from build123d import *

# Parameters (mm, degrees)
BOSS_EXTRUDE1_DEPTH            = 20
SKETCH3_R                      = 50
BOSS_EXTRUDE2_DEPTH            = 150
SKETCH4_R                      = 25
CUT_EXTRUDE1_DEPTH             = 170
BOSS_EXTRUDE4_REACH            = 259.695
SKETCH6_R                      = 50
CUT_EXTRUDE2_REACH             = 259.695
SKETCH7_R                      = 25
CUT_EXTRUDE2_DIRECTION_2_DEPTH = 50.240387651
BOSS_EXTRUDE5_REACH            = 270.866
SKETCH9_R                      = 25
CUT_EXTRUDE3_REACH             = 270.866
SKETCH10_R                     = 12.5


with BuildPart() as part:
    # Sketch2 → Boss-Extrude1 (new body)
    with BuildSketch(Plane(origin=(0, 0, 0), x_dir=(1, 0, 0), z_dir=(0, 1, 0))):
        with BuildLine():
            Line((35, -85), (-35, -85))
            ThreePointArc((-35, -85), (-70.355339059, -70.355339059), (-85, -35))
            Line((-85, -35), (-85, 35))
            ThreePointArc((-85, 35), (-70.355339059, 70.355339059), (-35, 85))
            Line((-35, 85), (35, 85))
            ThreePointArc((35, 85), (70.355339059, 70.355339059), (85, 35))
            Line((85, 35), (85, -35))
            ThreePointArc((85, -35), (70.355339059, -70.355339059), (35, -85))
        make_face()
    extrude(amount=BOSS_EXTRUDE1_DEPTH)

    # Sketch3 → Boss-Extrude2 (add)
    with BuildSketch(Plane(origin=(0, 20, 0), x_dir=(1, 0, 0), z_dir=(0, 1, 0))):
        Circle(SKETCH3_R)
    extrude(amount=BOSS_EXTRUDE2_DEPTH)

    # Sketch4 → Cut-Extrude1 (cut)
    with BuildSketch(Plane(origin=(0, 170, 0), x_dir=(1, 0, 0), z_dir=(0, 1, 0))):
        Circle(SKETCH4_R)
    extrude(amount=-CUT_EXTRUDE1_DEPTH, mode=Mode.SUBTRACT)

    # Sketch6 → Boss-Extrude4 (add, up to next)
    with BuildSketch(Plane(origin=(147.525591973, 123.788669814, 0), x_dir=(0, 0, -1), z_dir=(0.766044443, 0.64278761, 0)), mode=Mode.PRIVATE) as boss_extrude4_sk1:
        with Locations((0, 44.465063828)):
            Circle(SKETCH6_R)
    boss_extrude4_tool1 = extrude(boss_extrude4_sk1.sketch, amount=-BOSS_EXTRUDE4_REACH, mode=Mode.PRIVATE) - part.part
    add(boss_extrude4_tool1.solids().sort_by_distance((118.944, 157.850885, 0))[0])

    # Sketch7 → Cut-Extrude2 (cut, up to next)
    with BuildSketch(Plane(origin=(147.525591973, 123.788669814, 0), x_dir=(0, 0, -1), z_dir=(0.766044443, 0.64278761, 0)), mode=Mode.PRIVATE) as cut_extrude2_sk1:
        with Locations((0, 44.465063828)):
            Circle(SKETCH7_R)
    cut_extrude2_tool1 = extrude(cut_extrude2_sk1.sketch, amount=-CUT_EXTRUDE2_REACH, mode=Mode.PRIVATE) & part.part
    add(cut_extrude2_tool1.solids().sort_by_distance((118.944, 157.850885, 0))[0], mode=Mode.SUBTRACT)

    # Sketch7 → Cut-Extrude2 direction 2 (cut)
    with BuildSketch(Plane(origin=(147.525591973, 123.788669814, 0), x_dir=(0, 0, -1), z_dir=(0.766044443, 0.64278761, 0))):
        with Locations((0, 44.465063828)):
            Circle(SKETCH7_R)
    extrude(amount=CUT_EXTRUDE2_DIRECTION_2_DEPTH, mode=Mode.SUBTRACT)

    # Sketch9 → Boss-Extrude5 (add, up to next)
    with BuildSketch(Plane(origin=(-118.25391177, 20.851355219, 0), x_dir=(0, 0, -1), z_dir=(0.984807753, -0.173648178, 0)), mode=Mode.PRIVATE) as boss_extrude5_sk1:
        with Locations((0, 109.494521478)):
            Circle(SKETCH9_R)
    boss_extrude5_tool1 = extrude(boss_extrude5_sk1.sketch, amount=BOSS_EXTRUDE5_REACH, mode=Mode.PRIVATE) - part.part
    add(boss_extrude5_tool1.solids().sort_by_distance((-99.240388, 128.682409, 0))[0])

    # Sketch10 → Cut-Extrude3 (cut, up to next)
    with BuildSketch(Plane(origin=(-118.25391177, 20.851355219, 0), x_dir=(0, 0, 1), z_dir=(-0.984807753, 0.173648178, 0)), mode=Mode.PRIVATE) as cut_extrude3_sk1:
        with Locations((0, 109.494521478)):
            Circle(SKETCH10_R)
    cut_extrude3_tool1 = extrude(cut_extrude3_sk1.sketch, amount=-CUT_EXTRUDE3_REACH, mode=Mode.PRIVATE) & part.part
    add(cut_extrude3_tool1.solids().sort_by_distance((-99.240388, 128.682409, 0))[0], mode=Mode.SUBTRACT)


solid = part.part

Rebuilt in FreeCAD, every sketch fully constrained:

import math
import FreeCAD as App
import Part
import Sketcher

V = App.Vector

doc = App.newDocument("Part")
body = doc.addObject("PartDesign::Body", "Body")

sketch1 = body.newObject("Sketcher::SketchObject", "Sketch")
sketch1.AttachmentSupport = (doc.getObject("XZ_Plane"), [""])
sketch1.MapMode = "FlatFace"
sketch1.addGeometry([
    Part.LineSegment(V(-35, 85, 0), V(35, 85, 0)),
    Part.ArcOfCircle(Part.Circle(V(35, 35, 0), V(0, 0, 1), 50), math.radians(0), math.radians(90)),
    Part.LineSegment(V(85, 35, 0), V(85, -35, 0)),
    Part.ArcOfCircle(Part.Circle(V(35, -35, 0), V(0, 0, 1), 50), math.radians(-90), math.radians(0)),
    Part.LineSegment(V(35, -85, 0), V(-35, -85, 0)),
    Part.ArcOfCircle(Part.Circle(V(-35, -35, 0), V(0, 0, 1), 50), math.radians(-180), math.radians(-90)),
    Part.LineSegment(V(-85, -35, 0), V(-85, 35, 0)),
    Part.ArcOfCircle(Part.Circle(V(-35, 35, 0), V(0, 0, 1), 50), math.radians(90), math.radians(180)),
], False)
sketch1.addConstraint([
    Sketcher.Constraint("Tangent", 0, 2, 1, 2),
    Sketcher.Constraint("Tangent", 1, 1, 2, 1),
    Sketcher.Constraint("Tangent", 2, 2, 3, 2),
    Sketcher.Constraint("Tangent", 3, 1, 4, 1),
    Sketcher.Constraint("Tangent", 4, 2, 5, 2),
    Sketcher.Constraint("Tangent", 5, 1, 6, 1),
    Sketcher.Constraint("Tangent", 6, 2, 7, 2),
    Sketcher.Constraint("Tangent", 7, 1, 0, 1),
    Sketcher.Constraint("Horizontal", 0),
    Sketcher.Constraint("Vertical", 2),
    Sketcher.Constraint("Horizontal", 4),
    Sketcher.Constraint("Vertical", 6),
    Sketcher.Constraint("Equal", 1, 3),
    Sketcher.Constraint("Equal", 3, 5),
    Sketcher.Constraint("Equal", 5, 7),
    Sketcher.Constraint("Symmetric", 1, 3, 5, 3, -1, 1),
    Sketcher.Constraint("Equal", 4, 2),
    Sketcher.Constraint("Radius", 1, 50.0),
    Sketcher.Constraint("DistanceX", 0, 1, 0, 2, 70.0),
])
pad1 = body.newObject("PartDesign::Pad", "Pad")
pad1.Profile = sketch1
pad1.Length = 20
pad1.Reversed = True

sketch2 = body.newObject("Sketcher::SketchObject", "Sketch001")
sketch2.AttachmentSupport = (doc.getObject("XZ_Plane"), [""])
sketch2.MapMode = "FlatFace"
sketch2.AttachmentOffset = App.Placement(V(0, 0, -20), App.Rotation())
sketch2.addGeometry(Part.Circle(V(0, 0, 0), V(0, 0, 1), 50), False)
sketch2.addConstraint([
    Sketcher.Constraint("Coincident", 0, 3, -1, 1),
    Sketcher.Constraint("Diameter", 0, 100.0),
])
pad2 = body.newObject("PartDesign::Pad", "Pad001")
pad2.Profile = sketch2
pad2.Length = 150
pad2.Reversed = True

sketch3 = body.newObject("Sketcher::SketchObject", "Sketch002")
sketch3.AttachmentSupport = (doc.getObject("XZ_Plane"), [""])
sketch3.MapMode = "FlatFace"
sketch3.AttachmentOffset = App.Placement(V(0, 0, -170), App.Rotation())
sketch3.addGeometry(Part.Circle(V(0, 0, 0), V(0, 0, 1), 25), False)
sketch3.addConstraint([
    Sketcher.Constraint("Coincident", 0, 3, -1, 1),
    Sketcher.Constraint("Diameter", 0, 50.0),
])
pocket1 = body.newObject("PartDesign::Pocket", "Pocket")
pocket1.Profile = sketch3
pocket1.Length = 170
pocket1.Reversed = True

sketch4 = body.newObject("Sketcher::SketchObject", "Sketch003")
sketch4.Placement = App.Placement(V(147.525592, 123.78867, 0), App.Rotation(V(0, 0, -1), V(-0.64278761, 0.766044443, 0), V(0.766044443, 0.64278761, 0), "ZXY"))
sketch4.addGeometry(Part.Circle(V(0, 44, 0), V(0, 0, 1), 50), False)
sketch4.addConstraint([
    Sketcher.Constraint("PointOnObject", 0, 3, -2),
    Sketcher.Constraint("Diameter", 0, 100.0),
    Sketcher.Constraint("DistanceY", -1, 1, 0, 3, 44.465064),
])
pad3 = body.newObject("PartDesign::Pad", "Pad002")
pad3.Profile = sketch4
pad3.Type = "UpToFirst"
pad3.Reversed = True

sketch5 = body.newObject("Sketcher::SketchObject", "Sketch004")
sketch5.Placement = App.Placement(V(147.525592, 123.78867, 0), App.Rotation(V(0, 0, -1), V(-0.64278761, 0.766044443, 0), V(0.766044443, 0.64278761, 0), "ZXY"))
sketch5.addGeometry(Part.Circle(V(0, 44, 0), V(0, 0, 1), 25), False)
sketch5.addConstraint([
    Sketcher.Constraint("PointOnObject", 0, 3, -2),
    Sketcher.Constraint("Diameter", 0, 50.0),
    Sketcher.Constraint("DistanceY", -1, 1, 0, 3, 44.465064),
])
pocket2 = body.newObject("PartDesign::Pocket", "Pocket001")
pocket2.Profile = sketch5
pocket2.Type = "UpToFirst"

sketch6 = body.newObject("Sketcher::SketchObject", "Sketch005")
sketch6.Placement = App.Placement(V(147.525592, 123.78867, 0), App.Rotation(V(0, 0, -1), V(-0.64278761, 0.766044443, 0), V(0.766044443, 0.64278761, 0), "ZXY"))
sketch6.addGeometry(Part.Circle(V(0, 44, 0), V(0, 0, 1), 25), False)
sketch6.addConstraint([
    Sketcher.Constraint("PointOnObject", 0, 3, -2),
    Sketcher.Constraint("Diameter", 0, 50.0),
    Sketcher.Constraint("DistanceY", -1, 1, 0, 3, 44.465064),
])
pocket3 = body.newObject("PartDesign::Pocket", "Pocket002")
pocket3.Profile = sketch6
pocket3.Length = 50.240388
pocket3.Reversed = True

sketch7 = body.newObject("Sketcher::SketchObject", "Sketch006")
sketch7.Placement = App.Placement(V(-118.253912, 20.851355, 0), App.Rotation(V(0, 0, -1), V(0.173648178, 0.984807753, 0), V(0.984807753, -0.173648178, 0), "ZXY"))
sketch7.addGeometry(Part.Circle(V(0, 109, 0), V(0, 0, 1), 25), False)
sketch7.addConstraint([
    Sketcher.Constraint("PointOnObject", 0, 3, -2),
    Sketcher.Constraint("Diameter", 0, 50.0),
    Sketcher.Constraint("DistanceY", -1, 1, 0, 3, 109.494521),
])
pad4 = body.newObject("PartDesign::Pad", "Pad003")
pad4.Profile = sketch7
pad4.Type = "UpToFirst"

sketch8 = body.newObject("Sketcher::SketchObject", "Sketch007")
sketch8.Placement = App.Placement(V(-118.253912, 20.851355, 0), App.Rotation(V(0, 0, 1), V(0.173648178, 0.984807753, 0), V(-0.984807753, 0.173648178, 0), "ZXY"))
sketch8.addGeometry(Part.Circle(V(0, 109, 0), V(0, 0, 1), 12), False)
sketch8.addConstraint([
    Sketcher.Constraint("PointOnObject", 0, 3, -2),
    Sketcher.Constraint("Diameter", 0, 25.0),
    Sketcher.Constraint("DistanceY", -1, 1, 0, 3, 109.494521),
])
pocket4 = body.newObject("PartDesign::Pocket", "Pocket003")
pocket4.Profile = sketch8
pocket4.Type = "UpToFirst"

doc.recompute()
